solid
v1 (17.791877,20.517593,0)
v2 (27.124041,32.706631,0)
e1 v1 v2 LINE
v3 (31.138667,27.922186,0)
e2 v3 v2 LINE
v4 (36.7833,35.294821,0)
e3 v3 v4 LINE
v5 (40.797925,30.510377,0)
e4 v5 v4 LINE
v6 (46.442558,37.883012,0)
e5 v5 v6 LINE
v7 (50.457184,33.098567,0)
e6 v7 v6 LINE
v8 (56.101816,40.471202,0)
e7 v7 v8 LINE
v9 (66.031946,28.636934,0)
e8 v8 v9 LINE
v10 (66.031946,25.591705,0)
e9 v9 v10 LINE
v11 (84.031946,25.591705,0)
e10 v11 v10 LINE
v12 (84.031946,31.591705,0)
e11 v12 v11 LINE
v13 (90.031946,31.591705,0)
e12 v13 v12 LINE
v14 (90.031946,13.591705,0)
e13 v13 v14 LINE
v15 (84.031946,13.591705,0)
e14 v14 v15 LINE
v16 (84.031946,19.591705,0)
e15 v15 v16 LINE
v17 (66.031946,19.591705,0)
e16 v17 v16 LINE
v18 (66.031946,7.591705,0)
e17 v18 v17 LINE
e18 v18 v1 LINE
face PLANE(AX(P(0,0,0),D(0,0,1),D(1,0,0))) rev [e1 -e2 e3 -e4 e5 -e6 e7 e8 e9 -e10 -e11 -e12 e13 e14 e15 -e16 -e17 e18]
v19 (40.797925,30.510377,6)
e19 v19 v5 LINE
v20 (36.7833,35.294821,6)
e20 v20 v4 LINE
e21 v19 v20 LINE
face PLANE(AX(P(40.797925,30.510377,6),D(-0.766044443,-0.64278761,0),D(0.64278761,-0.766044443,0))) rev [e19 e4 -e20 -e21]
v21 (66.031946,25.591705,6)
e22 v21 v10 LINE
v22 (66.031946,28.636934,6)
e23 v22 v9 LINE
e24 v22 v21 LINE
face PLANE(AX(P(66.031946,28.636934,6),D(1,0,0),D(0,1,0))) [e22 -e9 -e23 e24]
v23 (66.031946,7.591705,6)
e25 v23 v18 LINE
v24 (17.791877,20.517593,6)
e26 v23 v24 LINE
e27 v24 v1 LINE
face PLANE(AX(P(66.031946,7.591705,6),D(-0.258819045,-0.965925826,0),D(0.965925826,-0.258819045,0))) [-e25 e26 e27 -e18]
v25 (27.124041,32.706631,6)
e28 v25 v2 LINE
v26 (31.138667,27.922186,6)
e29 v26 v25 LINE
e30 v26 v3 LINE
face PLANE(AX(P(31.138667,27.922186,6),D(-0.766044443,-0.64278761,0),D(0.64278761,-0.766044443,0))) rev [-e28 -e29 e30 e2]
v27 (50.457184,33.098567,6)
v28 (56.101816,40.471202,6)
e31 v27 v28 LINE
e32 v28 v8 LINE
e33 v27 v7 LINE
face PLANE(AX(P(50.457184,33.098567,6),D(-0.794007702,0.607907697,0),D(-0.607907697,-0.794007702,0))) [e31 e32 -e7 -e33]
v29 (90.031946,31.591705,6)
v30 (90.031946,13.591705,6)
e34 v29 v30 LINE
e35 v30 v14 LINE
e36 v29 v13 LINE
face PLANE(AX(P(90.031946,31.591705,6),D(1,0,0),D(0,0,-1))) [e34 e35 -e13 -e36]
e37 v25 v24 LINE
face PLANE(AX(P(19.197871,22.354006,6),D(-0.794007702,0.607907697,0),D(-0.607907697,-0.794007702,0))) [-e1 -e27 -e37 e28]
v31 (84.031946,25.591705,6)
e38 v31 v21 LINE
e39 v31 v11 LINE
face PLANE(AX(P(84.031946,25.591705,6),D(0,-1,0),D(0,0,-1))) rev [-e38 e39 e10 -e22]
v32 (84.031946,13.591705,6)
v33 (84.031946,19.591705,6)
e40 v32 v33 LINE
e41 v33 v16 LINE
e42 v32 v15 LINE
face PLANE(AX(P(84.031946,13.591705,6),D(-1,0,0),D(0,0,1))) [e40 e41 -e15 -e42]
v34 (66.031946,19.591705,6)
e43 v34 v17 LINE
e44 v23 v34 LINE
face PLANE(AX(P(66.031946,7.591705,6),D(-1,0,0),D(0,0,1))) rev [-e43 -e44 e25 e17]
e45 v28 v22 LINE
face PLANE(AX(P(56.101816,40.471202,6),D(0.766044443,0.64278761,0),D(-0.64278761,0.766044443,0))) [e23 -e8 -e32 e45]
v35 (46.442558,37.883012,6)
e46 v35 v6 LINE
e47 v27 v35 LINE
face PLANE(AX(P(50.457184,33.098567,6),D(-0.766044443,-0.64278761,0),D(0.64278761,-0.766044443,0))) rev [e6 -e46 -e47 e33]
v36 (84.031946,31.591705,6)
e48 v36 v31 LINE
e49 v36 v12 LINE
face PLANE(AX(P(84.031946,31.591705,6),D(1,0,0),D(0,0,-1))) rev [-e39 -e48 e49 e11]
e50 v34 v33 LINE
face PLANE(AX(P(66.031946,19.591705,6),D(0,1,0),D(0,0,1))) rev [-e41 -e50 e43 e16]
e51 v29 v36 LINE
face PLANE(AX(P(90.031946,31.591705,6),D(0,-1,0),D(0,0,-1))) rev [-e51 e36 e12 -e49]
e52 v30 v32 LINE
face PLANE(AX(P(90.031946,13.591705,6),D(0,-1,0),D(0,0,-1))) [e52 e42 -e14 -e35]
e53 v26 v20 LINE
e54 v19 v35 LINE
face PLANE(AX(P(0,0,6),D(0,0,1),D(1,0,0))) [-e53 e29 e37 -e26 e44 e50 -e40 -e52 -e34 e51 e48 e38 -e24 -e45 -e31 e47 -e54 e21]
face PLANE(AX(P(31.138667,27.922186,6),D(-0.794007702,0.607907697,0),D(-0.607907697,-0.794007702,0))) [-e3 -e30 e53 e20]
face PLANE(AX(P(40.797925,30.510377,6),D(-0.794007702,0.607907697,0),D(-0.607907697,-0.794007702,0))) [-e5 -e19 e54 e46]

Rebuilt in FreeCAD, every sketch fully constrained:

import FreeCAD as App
import Part
import Sketcher
Q = App.Units.Quantity


def add_polygon(sketch, points):
    """Adds a closed chain of lines whose ends are joined by coincident constraints."""
    first, n = sketch.GeometryCount, len(points)
    for a, b in zip(points, points[1:] + points[:1]):
        sketch.addGeometry(Part.LineSegment(App.Vector(*a, 0), App.Vector(*b, 0)), False)
    for i in range(n):
        sketch.addConstraint(Sketcher.Constraint("Coincident", first + i, 2, first + (i + 1) % n, 1))

doc = App.newDocument("Part")
body = doc.addObject("PartDesign::Body", "Body")

sketch1 = body.newObject("Sketcher::SketchObject", "Sketch")
sketch1.AttachmentSupport = (doc.getObject("XY_Plane"), [""])
sketch1.MapMode = "FlatFace"
add_polygon(sketch1, [(56.1, 40.5), (50.5, 33.1), (46.4, 37.9), (40.8, 30.5), (36.8, 35.3), (31.1, 27.9), (27.1, 32.7), (19.2, 22.4), (17.8, 20.5), (66, 7.6), (66, 19.6), (84, 19.6), (84, 13.6), (90, 13.6), (90, 31.6), (84, 31.6), (84, 25.6), (66, 25.6), (66, 28.6)])
sketch1.addConstraint([
    Sketcher.Constraint("Vertical", 9),
    Sketcher.Constraint("Horizontal", 10),
    Sketcher.Constraint("Vertical", 11),
    Sketcher.Constraint("Horizontal", 12),
    Sketcher.Constraint("Vertical", 13),
    Sketcher.Constraint("Horizontal", 14),
    Sketcher.Constraint("Vertical", 15),
    Sketcher.Constraint("Horizontal", 16),
    Sketcher.Constraint("Vertical", 17),
    Sketcher.Constraint("Parallel", 0, 2),
    Sketcher.Constraint("Parallel", 1, 3),
    Sketcher.Constraint("Parallel", 2, 4),
    Sketcher.Constraint("Parallel", 3, 5),
    Sketcher.Constraint("Parallel", 4, 6),
    Sketcher.Constraint("Parallel", 6, 7),
    Sketcher.Constraint("Parallel", 5, 18),
    Sketcher.Constraint("Vertical", 11, 2, 14, 2),
    Sketcher.Constraint("Vertical", 9, 2, 16, 2),
    Sketcher.Constraint("Equal", 14, 11),
    Sketcher.Constraint("Equal", 16, 13),
    Sketcher.Constraint("Equal", 11, 15),
    Sketcher.Constraint("Equal", 0, 2),
    Sketcher.Constraint("Equal", 1, 3),
    Sketcher.Constraint("Equal", 2, 4),
    Sketcher.Constraint("Equal", 3, 5),
    Sketcher.Constraint("DistanceX", 10, 1, 10, 2, Q("18 mm")),
    Sketcher.Constraint("DistanceX", 12, 1, 12, 2, Q("6 mm")),
    Sketcher.Constraint("DistanceY", 9, 1, 9, 2, Q("12 mm")),
    Sketcher.Constraint("Angle", 1, Q("130 deg")),
    Sketcher.Constraint("Angle", 8, Q("-15 deg")),
    Sketcher.Constraint("DistanceY", 17, 1, 17, 2, Q("3.045229 mm")),
    Sketcher.Constraint("DistanceX", -1, 1, 3, 2, Q("36.7833 mm")),
    Sketcher.Constraint("Distance", 1, Q("6.245649 mm")),
    Sketcher.Constraint("Distance", 7, Q("2.31284 mm")),
    Sketcher.Constraint("Distance", 18, Q("15.448539 mm")),
    Sketcher.Constraint("DistanceY", -1, 1, 1, 2, Q("37.883012 mm")),
    Sketcher.Constraint("DistanceY", -1, 1, 3, 2, Q("35.294821 mm")),
    Sketcher.Constraint("DistanceX", -1, 1, 5, 2, Q("27.124041 mm")),
])
pad1 = body.newObject("PartDesign::Pad", "Pad")
pad1.Profile = sketch1
pad1.Length = 6

doc.recompute()
